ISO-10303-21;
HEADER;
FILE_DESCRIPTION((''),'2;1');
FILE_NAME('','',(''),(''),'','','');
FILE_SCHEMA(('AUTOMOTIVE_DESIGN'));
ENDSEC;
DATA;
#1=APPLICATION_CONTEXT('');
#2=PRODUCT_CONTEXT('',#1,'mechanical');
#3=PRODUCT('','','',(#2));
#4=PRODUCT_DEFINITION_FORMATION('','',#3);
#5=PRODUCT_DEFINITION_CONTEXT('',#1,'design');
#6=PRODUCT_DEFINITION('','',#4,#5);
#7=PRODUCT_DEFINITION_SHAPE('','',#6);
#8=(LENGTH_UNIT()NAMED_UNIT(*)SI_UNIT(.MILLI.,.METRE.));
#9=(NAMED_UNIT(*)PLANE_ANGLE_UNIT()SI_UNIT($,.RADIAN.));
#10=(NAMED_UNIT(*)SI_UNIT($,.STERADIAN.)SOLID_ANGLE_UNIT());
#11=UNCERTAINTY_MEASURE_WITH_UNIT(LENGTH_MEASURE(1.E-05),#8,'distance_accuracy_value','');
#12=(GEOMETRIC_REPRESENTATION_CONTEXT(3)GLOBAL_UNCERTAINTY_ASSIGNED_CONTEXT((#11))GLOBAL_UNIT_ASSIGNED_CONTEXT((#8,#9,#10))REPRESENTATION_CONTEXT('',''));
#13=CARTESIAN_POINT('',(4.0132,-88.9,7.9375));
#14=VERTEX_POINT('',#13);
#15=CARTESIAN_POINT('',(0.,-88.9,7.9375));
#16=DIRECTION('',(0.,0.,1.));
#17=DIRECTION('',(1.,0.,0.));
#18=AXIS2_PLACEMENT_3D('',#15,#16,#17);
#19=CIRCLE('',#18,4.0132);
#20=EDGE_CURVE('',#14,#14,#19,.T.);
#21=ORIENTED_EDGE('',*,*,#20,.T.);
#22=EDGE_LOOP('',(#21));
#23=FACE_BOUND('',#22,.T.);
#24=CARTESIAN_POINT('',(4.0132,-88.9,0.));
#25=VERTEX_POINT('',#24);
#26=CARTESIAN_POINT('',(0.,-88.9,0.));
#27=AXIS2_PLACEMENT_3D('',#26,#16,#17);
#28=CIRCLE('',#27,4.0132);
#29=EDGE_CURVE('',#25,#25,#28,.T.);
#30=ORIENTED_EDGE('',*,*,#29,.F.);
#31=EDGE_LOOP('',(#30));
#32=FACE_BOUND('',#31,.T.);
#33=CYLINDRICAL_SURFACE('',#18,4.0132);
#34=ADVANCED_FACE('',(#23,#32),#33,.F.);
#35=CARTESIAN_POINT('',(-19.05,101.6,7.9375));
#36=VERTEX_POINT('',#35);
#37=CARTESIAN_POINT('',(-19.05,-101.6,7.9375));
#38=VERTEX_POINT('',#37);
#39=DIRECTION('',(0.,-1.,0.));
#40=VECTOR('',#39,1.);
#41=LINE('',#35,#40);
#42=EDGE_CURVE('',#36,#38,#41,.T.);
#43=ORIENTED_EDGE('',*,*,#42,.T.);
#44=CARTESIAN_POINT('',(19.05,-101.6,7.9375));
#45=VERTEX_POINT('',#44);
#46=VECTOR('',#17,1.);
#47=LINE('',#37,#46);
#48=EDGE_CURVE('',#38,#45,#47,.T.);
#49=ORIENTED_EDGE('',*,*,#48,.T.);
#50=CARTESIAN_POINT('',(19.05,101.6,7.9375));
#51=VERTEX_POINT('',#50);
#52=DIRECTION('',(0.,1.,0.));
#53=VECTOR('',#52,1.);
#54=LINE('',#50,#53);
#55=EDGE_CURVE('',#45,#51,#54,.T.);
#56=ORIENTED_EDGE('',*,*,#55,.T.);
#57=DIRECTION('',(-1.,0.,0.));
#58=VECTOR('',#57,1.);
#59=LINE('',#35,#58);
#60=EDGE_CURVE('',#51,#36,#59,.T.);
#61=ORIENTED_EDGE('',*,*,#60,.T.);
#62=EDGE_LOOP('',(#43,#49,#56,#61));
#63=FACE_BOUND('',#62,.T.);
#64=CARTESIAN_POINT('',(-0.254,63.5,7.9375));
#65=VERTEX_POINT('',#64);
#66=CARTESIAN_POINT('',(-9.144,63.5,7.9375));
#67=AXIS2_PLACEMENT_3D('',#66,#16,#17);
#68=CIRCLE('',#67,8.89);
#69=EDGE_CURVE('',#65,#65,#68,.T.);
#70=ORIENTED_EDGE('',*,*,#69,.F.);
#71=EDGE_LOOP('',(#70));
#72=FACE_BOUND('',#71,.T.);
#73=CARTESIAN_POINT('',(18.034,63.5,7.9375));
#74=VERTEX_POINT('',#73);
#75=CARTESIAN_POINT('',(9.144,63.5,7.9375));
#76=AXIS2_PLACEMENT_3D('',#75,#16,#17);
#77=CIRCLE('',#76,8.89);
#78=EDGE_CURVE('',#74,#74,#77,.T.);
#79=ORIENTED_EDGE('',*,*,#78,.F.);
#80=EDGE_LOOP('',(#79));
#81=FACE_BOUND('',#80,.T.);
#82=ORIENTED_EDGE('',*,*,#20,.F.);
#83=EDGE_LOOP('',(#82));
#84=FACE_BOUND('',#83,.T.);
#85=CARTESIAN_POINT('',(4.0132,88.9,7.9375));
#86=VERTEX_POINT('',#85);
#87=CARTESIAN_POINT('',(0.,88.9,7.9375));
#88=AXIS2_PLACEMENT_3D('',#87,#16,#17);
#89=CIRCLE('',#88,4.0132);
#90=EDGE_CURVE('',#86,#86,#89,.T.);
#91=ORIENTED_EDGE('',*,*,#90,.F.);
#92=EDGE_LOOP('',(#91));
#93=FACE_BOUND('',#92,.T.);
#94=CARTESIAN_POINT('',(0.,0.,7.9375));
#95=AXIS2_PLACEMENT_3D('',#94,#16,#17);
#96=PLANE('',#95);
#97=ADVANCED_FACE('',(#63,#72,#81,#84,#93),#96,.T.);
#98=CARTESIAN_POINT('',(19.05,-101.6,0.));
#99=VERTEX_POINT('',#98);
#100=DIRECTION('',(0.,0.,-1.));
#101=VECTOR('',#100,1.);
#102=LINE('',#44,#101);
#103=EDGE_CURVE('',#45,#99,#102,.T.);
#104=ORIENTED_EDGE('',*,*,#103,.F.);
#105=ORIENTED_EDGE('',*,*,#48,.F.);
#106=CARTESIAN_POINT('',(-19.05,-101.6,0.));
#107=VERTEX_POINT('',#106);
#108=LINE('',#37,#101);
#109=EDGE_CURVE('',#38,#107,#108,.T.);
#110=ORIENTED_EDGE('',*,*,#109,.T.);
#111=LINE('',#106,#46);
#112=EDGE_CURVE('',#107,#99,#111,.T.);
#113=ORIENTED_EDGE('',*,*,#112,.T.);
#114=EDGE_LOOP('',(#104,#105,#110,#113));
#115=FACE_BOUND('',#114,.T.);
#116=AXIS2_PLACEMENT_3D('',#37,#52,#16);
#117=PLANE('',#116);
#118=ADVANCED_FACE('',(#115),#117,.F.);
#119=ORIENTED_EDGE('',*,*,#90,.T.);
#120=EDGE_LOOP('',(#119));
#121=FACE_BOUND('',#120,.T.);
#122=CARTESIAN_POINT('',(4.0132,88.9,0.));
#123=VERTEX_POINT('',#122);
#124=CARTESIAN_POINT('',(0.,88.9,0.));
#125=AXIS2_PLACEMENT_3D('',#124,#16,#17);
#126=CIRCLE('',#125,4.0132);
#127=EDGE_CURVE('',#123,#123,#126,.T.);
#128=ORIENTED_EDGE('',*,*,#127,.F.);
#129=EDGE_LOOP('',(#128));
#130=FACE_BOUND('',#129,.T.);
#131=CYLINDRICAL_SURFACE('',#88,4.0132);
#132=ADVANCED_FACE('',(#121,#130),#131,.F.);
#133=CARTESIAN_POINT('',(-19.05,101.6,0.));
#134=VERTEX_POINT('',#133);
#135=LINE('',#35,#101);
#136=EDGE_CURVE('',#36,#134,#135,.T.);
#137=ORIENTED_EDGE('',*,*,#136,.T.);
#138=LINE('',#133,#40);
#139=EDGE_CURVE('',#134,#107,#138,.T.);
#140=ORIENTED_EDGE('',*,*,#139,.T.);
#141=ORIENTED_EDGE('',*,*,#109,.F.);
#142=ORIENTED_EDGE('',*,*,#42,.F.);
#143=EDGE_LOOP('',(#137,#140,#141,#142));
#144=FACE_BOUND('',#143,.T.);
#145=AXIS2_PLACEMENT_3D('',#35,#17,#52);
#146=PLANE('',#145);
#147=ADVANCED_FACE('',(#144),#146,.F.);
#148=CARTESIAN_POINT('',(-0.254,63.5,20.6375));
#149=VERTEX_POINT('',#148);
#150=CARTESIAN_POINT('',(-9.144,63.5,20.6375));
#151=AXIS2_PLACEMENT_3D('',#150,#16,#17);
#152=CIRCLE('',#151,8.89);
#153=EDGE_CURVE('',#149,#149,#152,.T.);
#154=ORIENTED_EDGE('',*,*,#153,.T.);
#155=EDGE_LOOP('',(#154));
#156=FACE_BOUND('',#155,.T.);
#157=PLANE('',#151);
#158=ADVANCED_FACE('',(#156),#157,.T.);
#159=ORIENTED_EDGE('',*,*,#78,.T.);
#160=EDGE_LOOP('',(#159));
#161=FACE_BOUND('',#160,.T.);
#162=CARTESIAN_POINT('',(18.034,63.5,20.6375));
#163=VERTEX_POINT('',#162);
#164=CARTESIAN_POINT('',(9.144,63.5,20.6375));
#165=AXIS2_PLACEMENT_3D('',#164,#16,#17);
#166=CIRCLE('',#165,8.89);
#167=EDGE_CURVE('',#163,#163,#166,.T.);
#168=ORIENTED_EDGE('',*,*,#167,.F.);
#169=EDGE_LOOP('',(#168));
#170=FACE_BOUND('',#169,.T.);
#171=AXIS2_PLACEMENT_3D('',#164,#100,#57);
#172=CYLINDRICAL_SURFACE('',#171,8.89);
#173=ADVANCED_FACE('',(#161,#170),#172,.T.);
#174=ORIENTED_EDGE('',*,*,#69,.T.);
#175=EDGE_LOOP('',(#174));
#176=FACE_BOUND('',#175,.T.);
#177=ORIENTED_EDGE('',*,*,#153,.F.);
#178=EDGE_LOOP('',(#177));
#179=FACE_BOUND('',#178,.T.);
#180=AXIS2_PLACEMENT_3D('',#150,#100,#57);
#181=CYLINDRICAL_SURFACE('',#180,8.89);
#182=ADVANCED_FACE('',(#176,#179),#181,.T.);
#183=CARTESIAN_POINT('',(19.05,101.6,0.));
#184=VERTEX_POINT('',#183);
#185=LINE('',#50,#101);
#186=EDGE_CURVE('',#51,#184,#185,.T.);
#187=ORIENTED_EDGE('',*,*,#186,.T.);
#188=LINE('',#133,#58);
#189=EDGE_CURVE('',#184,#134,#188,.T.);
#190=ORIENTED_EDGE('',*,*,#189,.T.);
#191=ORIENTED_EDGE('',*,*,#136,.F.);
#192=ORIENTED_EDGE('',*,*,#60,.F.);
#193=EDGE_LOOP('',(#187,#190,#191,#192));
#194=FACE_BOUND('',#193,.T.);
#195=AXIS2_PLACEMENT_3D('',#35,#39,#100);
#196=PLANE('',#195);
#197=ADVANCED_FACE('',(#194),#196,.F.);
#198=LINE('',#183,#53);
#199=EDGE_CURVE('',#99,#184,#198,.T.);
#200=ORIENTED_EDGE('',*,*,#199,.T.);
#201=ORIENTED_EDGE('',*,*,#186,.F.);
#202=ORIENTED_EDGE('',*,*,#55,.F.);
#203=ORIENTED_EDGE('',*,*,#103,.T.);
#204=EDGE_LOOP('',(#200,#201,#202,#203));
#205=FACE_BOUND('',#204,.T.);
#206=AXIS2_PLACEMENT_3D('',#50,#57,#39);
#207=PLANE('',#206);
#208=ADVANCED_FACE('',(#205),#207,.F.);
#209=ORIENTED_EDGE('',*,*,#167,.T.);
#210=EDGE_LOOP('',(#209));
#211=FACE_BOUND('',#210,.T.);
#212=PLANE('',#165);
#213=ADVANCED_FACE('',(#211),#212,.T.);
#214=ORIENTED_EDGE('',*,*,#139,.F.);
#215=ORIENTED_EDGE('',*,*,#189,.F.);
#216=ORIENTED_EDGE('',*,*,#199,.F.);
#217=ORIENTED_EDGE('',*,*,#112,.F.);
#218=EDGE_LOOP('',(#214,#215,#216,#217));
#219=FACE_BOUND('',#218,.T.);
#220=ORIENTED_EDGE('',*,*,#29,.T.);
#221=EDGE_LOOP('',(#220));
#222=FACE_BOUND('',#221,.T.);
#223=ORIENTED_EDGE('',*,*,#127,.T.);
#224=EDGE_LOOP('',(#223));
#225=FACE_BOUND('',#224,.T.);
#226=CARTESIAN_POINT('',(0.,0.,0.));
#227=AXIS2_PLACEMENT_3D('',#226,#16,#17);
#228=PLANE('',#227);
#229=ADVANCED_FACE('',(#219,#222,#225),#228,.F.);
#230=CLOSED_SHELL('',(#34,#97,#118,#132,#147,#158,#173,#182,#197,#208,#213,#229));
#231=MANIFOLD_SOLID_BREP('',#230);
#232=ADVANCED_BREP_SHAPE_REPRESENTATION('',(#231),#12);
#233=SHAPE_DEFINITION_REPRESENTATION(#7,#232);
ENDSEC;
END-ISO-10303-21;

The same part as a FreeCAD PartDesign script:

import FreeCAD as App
import Part
import Sketcher
Q = App.Units.Quantity


def add_polygon(sketch, points):
    """Adds a closed chain of lines whose ends are joined by coincident constraints."""
    first, n = sketch.GeometryCount, len(points)
    for a, b in zip(points, points[1:] + points[:1]):
        sketch.addGeometry(Part.LineSegment(App.Vector(*a, 0), App.Vector(*b, 0)), False)
    for i in range(n):
        sketch.addConstraint(Sketcher.Constraint("Coincident", first + i, 2, first + (i + 1) % n, 1))

doc = App.newDocument("Part")
body = doc.addObject("PartDesign::Body", "Body")

# Sketch on XY plane
sketch1 = body.newObject("Sketcher::SketchObject", "Sketch")
sketch1.AttachmentSupport = (doc.getObject("XY_Plane"), [""])
sketch1.MapMode = "FlatFace"
add_polygon(sketch1, [(-19, 102), (-19, -102), (19, -102), (19, 102)])  # lines 0-3
sketch1.addConstraint([
    Sketcher.Constraint("Vertical", 0),
    Sketcher.Constraint("Horizontal", 1),
    Sketcher.Constraint("Vertical", 2),
    Sketcher.Constraint("Horizontal", 3),
    Sketcher.Constraint("Symmetric", 0, 2, 2, 2, -1, 1),
    Sketcher.Constraint("DistanceY", 0, 2, 0, 1, Q("8 in")),
    Sketcher.Constraint("DistanceX", 1, 1, 1, 2, Q("1.5 in")),
])
pad1 = body.newObject("PartDesign::Pad", "Pad")
pad1.Profile = sketch1
pad1.Length = Q("0.3125 in")

# Sketch on XY plane
sketch2 = body.newObject("Sketcher::SketchObject", "Sketch001")
sketch2.AttachmentSupport = (doc.getObject("XY_Plane"), [""])
sketch2.MapMode = "FlatFace"
sketch2.AttachmentOffset = App.Placement(App.Vector(0, 0, 0.3125 * 25.4), App.Rotation())
sketch2.addGeometry(Part.Circle(App.Vector(0, 88.9, 0), App.Vector(0, 0, 1), 4), False)
sketch2.addConstraint([
    Sketcher.Constraint("PointOnObject", 0, 3, -2),
    Sketcher.Constraint("Diameter", 0, Q("0.316 in")),
    Sketcher.Constraint("DistanceY", -1, 1, 0, 3, Q("3.5 in")),
])
doc.recompute()
hole = body.newObject("PartDesign::Hole", "Hole")
hole.Profile = sketch2
hole.ThreadType = "None"
hole.Diameter = Q("0.316 in")
hole.DepthType = "ThroughAll"
doc.recompute()

mirrored = body.newObject("PartDesign::Mirrored", "Mirrored")
mirrored.Originals = [hole]
mirrored.MirrorPlane = (doc.getObject("XZ_Plane"), [""])
body.Tip = mirrored

# Sketch on XY plane
sketch3 = body.newObject("Sketcher::SketchObject", "Sketch002")
sketch3.AttachmentSupport = (doc.getObject("XY_Plane"), [""])
sketch3.MapMode = "FlatFace"
sketch3.AttachmentOffset = App.Placement(App.Vector(0, 0, 0.3125 * 25.4), App.Rotation())
sketch3.addGeometry([
    Part.Circle(App.Vector(-9, 64, 0), App.Vector(0, 0, 1), 9),
    Part.Circle(App.Vector(9, 64, 0), App.Vector(0, 0, 1), 9),
], False)
sketch3.addConstraint([
    Sketcher.Constraint("Equal", 0, 1),
    Sketcher.Constraint("Symmetric", 0, 3, 1, 3, -2),
    Sketcher.Constraint("Diameter", 0, Q("0.7 in")),
    Sketcher.Constraint("DistanceY", -1, 1, 0, 3, Q("2.5 in")),
    Sketcher.Constraint("DistanceX", 0, 3, -1, 1, Q("0.36 in")),
])
pad2 = body.newObject("PartDesign::Pad", "Pad001")
pad2.Profile = sketch3
pad2.Length = Q("0.5 in")

doc.recompute()
